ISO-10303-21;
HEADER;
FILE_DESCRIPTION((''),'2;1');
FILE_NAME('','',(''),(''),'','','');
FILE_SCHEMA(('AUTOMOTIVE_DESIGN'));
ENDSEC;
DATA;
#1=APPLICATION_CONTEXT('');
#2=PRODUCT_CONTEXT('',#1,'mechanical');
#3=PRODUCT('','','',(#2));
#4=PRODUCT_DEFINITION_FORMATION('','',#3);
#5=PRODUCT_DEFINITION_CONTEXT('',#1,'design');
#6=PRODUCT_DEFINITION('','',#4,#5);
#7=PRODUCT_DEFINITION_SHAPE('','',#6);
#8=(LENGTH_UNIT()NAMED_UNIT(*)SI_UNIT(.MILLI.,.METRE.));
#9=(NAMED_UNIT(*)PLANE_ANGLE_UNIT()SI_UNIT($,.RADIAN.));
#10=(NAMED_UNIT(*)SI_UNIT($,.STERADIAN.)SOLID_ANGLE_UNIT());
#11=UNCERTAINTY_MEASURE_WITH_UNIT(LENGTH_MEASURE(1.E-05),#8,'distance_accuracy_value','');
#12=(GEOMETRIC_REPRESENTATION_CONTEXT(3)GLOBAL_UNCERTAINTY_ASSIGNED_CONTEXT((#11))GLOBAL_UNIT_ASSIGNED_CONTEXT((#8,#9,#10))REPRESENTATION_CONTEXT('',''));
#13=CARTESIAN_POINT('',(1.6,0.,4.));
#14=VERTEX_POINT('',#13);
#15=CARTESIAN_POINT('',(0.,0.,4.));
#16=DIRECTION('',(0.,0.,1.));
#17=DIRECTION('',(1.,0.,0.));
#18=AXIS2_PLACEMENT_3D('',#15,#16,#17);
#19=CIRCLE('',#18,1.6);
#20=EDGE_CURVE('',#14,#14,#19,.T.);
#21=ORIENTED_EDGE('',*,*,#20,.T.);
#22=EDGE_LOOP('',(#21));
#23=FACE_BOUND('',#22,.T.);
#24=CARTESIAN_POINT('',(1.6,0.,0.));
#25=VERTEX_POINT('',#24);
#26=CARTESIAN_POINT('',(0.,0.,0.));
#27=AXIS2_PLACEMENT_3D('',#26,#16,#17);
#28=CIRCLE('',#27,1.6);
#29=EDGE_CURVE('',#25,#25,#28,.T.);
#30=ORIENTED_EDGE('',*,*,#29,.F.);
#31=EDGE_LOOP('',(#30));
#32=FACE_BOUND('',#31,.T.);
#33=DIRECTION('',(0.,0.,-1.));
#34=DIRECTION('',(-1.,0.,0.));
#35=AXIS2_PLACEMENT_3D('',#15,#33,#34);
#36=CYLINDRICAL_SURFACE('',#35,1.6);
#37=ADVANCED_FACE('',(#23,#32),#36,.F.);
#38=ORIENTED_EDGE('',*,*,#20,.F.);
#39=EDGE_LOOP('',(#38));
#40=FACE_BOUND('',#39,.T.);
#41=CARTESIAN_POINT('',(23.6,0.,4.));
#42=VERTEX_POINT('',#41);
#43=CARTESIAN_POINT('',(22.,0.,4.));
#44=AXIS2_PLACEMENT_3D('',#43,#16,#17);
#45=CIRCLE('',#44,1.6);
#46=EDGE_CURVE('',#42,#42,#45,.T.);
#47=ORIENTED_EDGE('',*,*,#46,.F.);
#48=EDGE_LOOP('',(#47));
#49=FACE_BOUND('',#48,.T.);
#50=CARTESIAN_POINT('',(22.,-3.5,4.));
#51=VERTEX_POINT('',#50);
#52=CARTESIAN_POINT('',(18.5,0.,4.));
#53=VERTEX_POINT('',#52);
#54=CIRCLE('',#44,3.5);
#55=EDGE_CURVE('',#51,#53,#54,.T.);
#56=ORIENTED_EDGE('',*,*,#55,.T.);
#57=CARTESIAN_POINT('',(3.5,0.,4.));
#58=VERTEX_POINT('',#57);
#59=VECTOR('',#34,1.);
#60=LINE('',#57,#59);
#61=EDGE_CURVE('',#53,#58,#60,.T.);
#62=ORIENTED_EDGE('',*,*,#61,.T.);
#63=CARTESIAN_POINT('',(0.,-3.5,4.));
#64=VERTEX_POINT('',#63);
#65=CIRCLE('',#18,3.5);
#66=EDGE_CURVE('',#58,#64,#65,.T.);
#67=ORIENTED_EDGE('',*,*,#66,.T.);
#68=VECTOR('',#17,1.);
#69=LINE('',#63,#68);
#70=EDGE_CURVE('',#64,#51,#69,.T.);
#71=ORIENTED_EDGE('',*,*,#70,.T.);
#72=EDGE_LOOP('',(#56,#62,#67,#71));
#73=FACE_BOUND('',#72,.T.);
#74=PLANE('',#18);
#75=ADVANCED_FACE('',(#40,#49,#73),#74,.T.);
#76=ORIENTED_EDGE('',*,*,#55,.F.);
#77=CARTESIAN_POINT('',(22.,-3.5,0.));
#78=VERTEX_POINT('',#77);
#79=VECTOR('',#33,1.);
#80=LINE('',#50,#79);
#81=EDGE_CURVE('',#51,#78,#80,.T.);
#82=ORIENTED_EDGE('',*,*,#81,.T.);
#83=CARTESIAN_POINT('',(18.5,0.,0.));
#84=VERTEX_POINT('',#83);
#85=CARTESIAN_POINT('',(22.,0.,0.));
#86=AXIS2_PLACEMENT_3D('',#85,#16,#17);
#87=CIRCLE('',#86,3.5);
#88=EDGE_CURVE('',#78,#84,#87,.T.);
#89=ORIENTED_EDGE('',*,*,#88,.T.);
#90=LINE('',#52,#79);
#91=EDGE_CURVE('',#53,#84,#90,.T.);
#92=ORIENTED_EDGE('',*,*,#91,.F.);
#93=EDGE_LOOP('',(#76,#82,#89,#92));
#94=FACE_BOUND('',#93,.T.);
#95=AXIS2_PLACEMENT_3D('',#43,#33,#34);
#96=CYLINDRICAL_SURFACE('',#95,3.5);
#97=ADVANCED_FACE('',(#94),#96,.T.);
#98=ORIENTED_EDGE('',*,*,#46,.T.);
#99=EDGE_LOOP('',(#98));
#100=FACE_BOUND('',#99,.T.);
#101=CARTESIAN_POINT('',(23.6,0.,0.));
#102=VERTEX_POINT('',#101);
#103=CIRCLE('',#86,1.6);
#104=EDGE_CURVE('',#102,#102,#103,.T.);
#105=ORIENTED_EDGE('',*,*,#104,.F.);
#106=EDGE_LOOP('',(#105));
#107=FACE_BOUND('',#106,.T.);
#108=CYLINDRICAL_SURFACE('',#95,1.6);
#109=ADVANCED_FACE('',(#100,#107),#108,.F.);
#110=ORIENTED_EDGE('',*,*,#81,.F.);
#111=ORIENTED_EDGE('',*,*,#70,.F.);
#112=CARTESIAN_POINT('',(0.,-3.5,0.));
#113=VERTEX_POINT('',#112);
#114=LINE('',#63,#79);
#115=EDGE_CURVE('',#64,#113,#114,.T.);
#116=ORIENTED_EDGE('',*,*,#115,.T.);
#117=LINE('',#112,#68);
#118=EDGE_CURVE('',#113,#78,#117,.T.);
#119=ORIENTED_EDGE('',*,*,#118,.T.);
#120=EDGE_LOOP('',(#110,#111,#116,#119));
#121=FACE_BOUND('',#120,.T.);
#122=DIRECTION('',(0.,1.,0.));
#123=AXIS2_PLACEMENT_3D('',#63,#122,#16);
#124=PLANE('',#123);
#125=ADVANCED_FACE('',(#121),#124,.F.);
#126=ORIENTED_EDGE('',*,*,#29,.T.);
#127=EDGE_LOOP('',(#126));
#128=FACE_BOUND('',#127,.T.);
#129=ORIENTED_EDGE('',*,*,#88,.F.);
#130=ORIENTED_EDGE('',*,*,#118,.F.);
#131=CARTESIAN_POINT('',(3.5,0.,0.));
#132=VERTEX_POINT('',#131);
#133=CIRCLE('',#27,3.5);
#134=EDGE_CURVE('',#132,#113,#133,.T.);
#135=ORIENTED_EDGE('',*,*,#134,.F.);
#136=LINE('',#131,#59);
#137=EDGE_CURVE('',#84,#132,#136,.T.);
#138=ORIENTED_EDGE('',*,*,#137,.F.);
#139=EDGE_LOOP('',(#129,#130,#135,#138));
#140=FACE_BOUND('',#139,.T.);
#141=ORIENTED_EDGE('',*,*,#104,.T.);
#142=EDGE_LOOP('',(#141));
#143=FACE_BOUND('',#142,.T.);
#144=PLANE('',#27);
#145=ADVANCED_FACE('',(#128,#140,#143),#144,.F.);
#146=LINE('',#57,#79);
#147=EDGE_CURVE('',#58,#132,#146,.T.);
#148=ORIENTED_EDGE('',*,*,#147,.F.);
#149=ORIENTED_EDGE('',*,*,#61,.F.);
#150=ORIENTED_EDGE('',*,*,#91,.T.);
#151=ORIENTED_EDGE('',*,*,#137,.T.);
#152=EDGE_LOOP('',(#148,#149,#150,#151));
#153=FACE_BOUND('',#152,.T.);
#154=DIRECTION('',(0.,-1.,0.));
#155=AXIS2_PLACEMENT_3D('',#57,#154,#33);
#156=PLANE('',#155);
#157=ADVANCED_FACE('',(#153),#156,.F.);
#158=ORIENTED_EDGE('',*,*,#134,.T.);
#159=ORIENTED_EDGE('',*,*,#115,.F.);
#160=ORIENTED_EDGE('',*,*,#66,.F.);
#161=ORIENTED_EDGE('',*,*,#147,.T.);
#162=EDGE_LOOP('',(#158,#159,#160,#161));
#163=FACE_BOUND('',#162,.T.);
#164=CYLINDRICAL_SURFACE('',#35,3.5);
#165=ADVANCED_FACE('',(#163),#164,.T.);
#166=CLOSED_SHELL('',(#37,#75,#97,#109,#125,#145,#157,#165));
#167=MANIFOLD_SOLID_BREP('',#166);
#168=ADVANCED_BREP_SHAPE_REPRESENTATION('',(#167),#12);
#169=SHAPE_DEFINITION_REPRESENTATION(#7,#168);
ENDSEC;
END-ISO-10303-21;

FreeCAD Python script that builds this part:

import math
import FreeCAD as App
import Part
import Sketcher
from FreeCAD import Vector
Q = App.Units.Quantity

doc = App.newDocument("Part")
body = doc.addObject("PartDesign::Body", "Body")

# Sketch on XY plane
sketch1 = doc.addObject("Sketcher::SketchObject", "Sketch")
body.addObject(sketch1)
sketch1.AttachmentSupport = (doc.XY_Plane, [""])
sketch1.MapMode = "FlatFace"
sketch1.addGeometry([
    Part.LineSegment(Vector(0, -3.5, 0), Vector(22, -3.5, 0)),  # 0
    Part.ArcOfCircle(Part.Circle(Vector(22, 0, 0), Vector(0, 0, 1), 3.5), math.radians(-90), math.radians(180)),  # 1
    Part.LineSegment(Vector(18.5, 0, 0), Vector(3.5, 0, 0)),  # 2
    Part.ArcOfCircle(Part.Circle(Vector(0, 0, 0), Vector(0, 0, 1), 3.5), math.radians(0), math.radians(270)),  # 3
    Part.Circle(Vector(0, 0, 0), Vector(0, 0, 1), 1.6),  # 4
    Part.Circle(Vector(22, 0, 0), Vector(0, 0, 1), 1.6),  # 5
], False)
sketch1.addConstraint([
    Sketcher.Constraint("Tangent", 0, 2, 1, 1),
    Sketcher.Constraint("Coincident", 1, 2, 2, 1),
    Sketcher.Constraint("Coincident", 2, 2, 3, 1),
    Sketcher.Constraint("Tangent", 3, 2, 0, 1),
    Sketcher.Constraint("Horizontal", 0),
    Sketcher.Constraint("Horizontal", 2),
    Sketcher.Constraint("Coincident", 3, 3, -1, 1),
    Sketcher.Constraint("Coincident", 4, 3, -1, 1),
    Sketcher.Constraint("Coincident", 5, 3, 1, 3),
    Sketcher.Constraint("Equal", 1, 3),
    Sketcher.Constraint("Equal", 4, 5),
    Sketcher.Constraint("PointOnObject", 1, 2, -1),
    Sketcher.Constraint("Diameter", 4, Q("3.2 mm")),
    Sketcher.Constraint("Radius", 1, Q("3.5 mm")),
    Sketcher.Constraint("DistanceX", 0, 1, 0, 2, Q("22 mm")),
])
pad1 = doc.addObject("PartDesign::Pad", "Pad")
body.addObject(pad1)
pad1.Profile = sketch1
pad1.Length = 4

doc.recompute()
